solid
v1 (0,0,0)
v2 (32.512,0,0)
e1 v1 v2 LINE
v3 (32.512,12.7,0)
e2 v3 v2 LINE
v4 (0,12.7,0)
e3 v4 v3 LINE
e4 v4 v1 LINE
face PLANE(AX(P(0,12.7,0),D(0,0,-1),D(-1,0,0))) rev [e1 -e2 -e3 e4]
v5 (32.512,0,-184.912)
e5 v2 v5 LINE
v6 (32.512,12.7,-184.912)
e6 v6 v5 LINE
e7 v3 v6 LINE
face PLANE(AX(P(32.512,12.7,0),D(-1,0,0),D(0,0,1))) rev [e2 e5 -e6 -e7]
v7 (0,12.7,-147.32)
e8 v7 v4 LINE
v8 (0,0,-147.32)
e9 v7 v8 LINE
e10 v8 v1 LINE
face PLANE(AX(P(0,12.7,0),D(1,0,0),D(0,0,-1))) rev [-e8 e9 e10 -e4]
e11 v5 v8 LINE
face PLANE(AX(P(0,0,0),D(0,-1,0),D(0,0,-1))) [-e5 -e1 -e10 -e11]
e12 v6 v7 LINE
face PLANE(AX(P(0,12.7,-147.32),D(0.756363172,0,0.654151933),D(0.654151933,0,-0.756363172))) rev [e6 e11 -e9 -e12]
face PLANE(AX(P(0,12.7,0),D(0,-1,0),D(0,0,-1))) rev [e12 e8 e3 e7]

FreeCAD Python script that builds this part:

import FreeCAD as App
import Part
import Sketcher

V = App.Vector
Q = App.Units.Quantity

doc = App.newDocument("Part")
body = doc.addObject("PartDesign::Body", "Body")

sketch1 = body.newObject("Sketcher::SketchObject", "Sketch")
sketch1.AttachmentSupport = (doc.getObject("XZ_Plane"), [""])
sketch1.MapMode = "FlatFace"
sketch1.addGeometry([
    Part.LineSegment(V(0, 0, 0), V(33, 0, 0)),
    Part.LineSegment(V(33, 0, 0), V(33, -185, 0)),
    Part.LineSegment(V(33, -185, 0), V(0, -147, 0)),
    Part.LineSegment(V(0, -147, 0), V(0, 0, 0)),
], False)
sketch1.addConstraint([
    Sketcher.Constraint("Coincident", 0, 2, 1, 1),
    Sketcher.Constraint("Coincident", 1, 2, 2, 1),
    Sketcher.Constraint("Coincident", 2, 2, 3, 1),
    Sketcher.Constraint("Coincident", 3, 2, 0, 1),
    Sketcher.Constraint("Horizontal", 0),
    Sketcher.Constraint("Vertical", 1),
    Sketcher.Constraint("Vertical", 3),
    Sketcher.Constraint("Coincident", 3, 2, -1, 1),
    Sketcher.Constraint("DistanceY", 3, 1, 3, 2, Q("5.8 in")),
    Sketcher.Constraint("DistanceX", 0, 1, 0, 2, Q("1.28 in")),
    Sketcher.Constraint("DistanceY", 1, 2, 1, 1, Q("7.28 in")),
])
pad1 = body.newObject("PartDesign::Pad", "Pad")
pad1.Profile = sketch1
pad1.Length = Q("0.5 in")
pad1.Reversed = True

doc.recompute()
